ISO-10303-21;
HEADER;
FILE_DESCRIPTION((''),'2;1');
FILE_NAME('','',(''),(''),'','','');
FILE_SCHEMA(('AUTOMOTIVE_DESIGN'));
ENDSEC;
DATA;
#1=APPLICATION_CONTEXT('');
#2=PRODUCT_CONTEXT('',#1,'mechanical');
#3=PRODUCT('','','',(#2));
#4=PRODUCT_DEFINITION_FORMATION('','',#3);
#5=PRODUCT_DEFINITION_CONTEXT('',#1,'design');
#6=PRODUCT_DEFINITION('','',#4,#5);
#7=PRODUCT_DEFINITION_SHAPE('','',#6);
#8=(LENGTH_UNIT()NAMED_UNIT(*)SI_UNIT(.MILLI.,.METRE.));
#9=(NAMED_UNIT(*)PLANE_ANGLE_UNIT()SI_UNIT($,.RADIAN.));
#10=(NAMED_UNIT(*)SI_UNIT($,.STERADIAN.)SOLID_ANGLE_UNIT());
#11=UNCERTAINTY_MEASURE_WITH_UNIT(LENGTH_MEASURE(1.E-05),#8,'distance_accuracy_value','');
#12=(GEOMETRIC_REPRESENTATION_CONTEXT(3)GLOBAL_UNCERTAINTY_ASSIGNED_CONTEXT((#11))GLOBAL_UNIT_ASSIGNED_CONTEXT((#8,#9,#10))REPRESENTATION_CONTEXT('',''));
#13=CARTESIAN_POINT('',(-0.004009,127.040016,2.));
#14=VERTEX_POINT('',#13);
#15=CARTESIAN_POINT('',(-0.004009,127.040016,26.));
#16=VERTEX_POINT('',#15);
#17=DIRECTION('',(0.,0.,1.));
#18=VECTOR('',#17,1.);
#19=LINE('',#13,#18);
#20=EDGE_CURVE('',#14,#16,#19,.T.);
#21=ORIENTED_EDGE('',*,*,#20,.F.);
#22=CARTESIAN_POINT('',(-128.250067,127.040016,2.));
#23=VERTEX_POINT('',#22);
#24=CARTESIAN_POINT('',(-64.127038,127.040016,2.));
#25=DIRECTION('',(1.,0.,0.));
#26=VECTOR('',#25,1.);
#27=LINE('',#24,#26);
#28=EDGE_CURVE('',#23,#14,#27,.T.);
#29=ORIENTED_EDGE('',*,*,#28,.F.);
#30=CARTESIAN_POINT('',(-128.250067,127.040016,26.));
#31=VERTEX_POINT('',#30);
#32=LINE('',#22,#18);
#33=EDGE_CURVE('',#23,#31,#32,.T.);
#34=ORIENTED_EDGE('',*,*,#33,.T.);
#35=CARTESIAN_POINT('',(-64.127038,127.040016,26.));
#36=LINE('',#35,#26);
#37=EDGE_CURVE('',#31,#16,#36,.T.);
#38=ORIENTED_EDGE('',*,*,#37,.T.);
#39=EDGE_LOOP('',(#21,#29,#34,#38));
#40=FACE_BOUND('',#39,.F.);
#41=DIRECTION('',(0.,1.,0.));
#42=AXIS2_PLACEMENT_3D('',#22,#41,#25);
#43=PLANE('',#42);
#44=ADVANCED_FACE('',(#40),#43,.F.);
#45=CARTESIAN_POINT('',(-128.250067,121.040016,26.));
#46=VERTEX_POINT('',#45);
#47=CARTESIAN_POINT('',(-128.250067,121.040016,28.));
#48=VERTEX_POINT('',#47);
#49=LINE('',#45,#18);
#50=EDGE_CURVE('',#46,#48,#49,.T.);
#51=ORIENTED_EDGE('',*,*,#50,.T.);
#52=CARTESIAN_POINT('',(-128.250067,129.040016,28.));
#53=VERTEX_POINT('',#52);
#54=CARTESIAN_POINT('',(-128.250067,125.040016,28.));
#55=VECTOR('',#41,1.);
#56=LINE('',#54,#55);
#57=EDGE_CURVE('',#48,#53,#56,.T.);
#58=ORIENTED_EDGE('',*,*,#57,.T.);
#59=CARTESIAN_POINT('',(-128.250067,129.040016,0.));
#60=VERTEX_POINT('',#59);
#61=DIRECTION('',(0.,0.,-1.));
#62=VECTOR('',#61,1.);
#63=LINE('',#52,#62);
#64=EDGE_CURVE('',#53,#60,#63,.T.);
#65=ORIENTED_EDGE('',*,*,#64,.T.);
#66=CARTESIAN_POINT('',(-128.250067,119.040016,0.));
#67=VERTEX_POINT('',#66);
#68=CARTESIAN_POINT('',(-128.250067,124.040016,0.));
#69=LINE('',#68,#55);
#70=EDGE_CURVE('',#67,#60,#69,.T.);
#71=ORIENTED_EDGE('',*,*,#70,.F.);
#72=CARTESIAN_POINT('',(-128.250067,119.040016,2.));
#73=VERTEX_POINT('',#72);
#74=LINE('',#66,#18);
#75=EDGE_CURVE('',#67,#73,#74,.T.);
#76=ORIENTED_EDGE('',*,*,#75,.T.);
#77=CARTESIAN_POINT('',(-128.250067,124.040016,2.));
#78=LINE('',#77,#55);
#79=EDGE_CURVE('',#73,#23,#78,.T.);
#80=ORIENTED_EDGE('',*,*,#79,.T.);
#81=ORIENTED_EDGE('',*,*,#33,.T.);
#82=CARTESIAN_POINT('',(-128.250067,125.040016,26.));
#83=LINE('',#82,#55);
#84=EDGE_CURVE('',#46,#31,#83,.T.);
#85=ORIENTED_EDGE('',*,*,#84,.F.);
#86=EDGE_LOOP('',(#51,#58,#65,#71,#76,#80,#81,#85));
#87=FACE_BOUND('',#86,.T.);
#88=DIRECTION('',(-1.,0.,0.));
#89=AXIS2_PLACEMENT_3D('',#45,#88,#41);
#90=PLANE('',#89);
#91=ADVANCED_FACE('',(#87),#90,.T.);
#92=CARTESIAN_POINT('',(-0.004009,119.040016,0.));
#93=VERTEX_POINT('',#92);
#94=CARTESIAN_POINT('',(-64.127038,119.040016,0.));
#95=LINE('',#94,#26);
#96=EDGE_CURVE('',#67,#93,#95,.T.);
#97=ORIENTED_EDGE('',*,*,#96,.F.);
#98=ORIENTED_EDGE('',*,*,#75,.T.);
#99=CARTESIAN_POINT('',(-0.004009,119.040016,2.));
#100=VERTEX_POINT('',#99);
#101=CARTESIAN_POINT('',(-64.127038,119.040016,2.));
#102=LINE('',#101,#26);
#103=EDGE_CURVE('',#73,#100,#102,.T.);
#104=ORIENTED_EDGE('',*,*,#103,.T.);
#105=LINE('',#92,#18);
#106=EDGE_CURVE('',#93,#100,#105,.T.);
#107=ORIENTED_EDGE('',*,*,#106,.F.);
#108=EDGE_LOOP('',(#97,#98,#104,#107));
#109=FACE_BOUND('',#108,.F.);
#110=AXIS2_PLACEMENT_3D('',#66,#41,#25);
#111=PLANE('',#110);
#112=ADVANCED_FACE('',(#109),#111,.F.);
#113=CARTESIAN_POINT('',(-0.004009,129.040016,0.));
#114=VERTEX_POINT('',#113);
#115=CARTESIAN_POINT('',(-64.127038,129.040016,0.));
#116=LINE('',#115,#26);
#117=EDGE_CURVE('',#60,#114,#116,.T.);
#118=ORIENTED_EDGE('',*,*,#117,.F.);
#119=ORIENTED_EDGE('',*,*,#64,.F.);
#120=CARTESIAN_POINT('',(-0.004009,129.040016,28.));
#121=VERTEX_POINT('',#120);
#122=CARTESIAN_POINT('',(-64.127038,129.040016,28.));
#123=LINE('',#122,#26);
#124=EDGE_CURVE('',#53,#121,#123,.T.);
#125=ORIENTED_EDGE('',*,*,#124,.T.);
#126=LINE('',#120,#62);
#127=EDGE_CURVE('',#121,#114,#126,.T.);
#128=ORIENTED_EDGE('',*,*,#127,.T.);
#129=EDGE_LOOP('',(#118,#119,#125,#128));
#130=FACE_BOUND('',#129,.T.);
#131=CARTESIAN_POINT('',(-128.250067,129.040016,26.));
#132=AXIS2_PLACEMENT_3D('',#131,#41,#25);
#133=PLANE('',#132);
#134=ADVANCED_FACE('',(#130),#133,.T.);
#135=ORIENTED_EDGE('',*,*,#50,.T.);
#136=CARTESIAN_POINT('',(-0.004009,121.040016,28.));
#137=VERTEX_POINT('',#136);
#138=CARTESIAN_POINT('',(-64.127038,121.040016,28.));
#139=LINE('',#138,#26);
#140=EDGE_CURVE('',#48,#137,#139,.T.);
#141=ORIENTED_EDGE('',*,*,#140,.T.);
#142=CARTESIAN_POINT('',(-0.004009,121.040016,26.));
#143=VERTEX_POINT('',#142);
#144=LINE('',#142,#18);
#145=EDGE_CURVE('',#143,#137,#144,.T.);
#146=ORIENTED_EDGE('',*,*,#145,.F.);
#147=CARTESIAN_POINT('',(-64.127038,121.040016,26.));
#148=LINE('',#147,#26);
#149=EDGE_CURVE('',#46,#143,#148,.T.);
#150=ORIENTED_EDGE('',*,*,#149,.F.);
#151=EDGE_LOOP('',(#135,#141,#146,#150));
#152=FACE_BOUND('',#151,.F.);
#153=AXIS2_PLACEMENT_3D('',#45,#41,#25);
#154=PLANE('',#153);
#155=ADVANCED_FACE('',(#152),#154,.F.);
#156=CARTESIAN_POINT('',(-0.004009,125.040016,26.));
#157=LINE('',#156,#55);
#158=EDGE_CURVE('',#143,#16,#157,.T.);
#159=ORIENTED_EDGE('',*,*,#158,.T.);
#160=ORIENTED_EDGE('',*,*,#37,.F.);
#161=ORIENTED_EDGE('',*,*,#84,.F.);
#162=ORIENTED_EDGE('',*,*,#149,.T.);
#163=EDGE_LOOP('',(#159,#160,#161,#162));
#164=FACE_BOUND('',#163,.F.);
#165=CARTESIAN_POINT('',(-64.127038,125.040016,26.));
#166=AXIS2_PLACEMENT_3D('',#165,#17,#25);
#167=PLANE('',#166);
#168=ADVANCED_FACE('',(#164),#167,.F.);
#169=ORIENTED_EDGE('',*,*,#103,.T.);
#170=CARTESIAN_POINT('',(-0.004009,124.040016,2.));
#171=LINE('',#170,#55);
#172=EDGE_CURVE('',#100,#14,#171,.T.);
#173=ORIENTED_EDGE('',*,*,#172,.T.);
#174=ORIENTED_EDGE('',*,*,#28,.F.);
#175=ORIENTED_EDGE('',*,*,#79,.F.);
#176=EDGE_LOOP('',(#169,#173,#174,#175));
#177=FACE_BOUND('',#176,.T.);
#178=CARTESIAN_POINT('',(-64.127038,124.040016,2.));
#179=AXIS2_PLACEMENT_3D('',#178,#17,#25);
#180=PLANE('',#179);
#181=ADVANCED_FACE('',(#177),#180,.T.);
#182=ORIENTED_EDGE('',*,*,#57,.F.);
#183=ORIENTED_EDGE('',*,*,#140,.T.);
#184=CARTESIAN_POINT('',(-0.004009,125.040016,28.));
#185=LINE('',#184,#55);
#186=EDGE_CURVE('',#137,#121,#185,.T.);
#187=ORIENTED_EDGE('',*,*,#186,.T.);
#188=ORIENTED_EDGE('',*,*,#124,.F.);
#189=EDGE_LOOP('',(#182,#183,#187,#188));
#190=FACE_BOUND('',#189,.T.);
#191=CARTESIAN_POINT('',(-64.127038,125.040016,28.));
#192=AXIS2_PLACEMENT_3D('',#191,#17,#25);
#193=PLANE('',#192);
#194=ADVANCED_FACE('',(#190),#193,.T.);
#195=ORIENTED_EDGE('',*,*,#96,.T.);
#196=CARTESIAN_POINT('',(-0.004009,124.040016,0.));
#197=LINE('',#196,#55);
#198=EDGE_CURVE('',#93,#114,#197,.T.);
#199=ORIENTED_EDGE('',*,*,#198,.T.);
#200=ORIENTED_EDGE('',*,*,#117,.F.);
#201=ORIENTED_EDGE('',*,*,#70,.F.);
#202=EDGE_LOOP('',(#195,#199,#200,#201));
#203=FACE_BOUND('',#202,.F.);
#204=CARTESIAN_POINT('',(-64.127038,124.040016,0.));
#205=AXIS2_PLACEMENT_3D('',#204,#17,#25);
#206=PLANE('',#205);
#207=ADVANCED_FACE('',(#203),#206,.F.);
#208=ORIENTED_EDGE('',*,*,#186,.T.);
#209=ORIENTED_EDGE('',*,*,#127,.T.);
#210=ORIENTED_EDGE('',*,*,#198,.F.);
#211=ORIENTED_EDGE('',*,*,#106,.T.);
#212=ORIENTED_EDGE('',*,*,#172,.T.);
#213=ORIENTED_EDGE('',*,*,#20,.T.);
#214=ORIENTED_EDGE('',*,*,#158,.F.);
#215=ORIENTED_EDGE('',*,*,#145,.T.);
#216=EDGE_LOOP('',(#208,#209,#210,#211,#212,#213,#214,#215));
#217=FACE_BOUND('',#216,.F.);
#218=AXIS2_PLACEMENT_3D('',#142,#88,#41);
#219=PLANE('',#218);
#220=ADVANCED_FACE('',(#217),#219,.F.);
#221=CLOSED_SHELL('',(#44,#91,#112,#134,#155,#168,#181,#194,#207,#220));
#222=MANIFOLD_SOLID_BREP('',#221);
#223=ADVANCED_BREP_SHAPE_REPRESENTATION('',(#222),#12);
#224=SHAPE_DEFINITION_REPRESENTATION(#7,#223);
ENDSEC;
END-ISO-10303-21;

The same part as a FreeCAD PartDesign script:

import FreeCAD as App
import Part
import Sketcher

V = App.Vector

doc = App.newDocument("Part")
params = doc.addObject("Spreadsheet::Sheet", "Params")
for row, (alias, value) in enumerate([
    ("sketch1_height", "10 mm"),
    ("pad1_length", "2 mm"),
    ("sketch2_height", "2 mm"),
    ("pad2_length", "24 mm"),
    ("sketch3_height", "8 mm"),
    ("pad3_length", "2 mm"),
], start=1):
    params.set(f"A{row}", alias)
    params.set(f"B{row}", "=" + value)
    params.setAlias(f"B{row}", alias)

body = doc.addObject("PartDesign::Body", "Body")

sketch1 = body.newObject("Sketcher::SketchObject", "Sketch")
sketch1.AttachmentSupport = (doc.getObject("XY_Plane"), [""])
sketch1.MapMode = "FlatFace"
sketch1.addGeometry(Part.LineSegment(V(-128, 129, 0), V(-128, 119, 0)), False)
sketch1.addGeometry(Part.LineSegment(V(-128, 119, 0), V(0, 119, 0)), False)
sketch1.addGeometry(Part.LineSegment(V(0, 119, 0), V(0, 129, 0)), False)
sketch1.addGeometry(Part.LineSegment(V(0, 129, 0), V(-128, 129, 0)), False)
sketch1.addConstraint(Sketcher.Constraint("Coincident", 0, 2, 1, 1))
sketch1.addConstraint(Sketcher.Constraint("Coincident", 1, 2, 2, 1))
sketch1.addConstraint(Sketcher.Constraint("Coincident", 2, 2, 3, 1))
sketch1.addConstraint(Sketcher.Constraint("Coincident", 3, 2, 0, 1))
sketch1.addConstraint(Sketcher.Constraint("Vertical", 0))
sketch1.addConstraint(Sketcher.Constraint("Horizontal", 1))
sketch1.addConstraint(Sketcher.Constraint("Vertical", 2))
sketch1.addConstraint(Sketcher.Constraint("Horizontal", 3))
sketch1.addConstraint(Sketcher.Constraint("DistanceY", 0, 2, 0, 1, 10.0))
sketch1.addConstraint(Sketcher.Constraint("DistanceX", 1, 1, 1, 2, 128.246058))
sketch1.addConstraint(Sketcher.Constraint("DistanceX", 1, 2, -1, 1, 0.004009))
sketch1.addConstraint(Sketcher.Constraint("DistanceY", -1, 1, 0, 2, 119.040016))
sketch1.setExpression("Constraints[8]", "Params.sketch1_height")
pad1 = body.newObject("PartDesign::Pad", "Pad")
pad1.Profile = sketch1
pad1.setExpression("Length", "Params.pad1_length")

sketch2 = body.newObject("Sketcher::SketchObject", "Sketch001")
sketch2.AttachmentSupport = (doc.getObject("XY_Plane"), [""])
sketch2.MapMode = "FlatFace"
sketch2.AttachmentOffset = App.Placement(V(0, 0, 2), App.Rotation())
sketch2.addGeometry(Part.LineSegment(V(-128.3, 129, 0), V(-128.3, 127, 0)), False)
sketch2.addGeometry(Part.LineSegment(V(-128.3, 127, 0), V(0, 127, 0)), False)
sketch2.addGeometry(Part.LineSegment(V(0, 127, 0), V(0, 129, 0)), False)
sketch2.addGeometry(Part.LineSegment(V(0, 129, 0), V(-128.3, 129, 0)), False)
sketch2.addConstraint(Sketcher.Constraint("Coincident", 0, 2, 1, 1))
sketch2.addConstraint(Sketcher.Constraint("Coincident", 1, 2, 2, 1))
sketch2.addConstraint(Sketcher.Constraint("Coincident", 2, 2, 3, 1))
sketch2.addConstraint(Sketcher.Constraint("Coincident", 3, 2, 0, 1))
sketch2.addConstraint(Sketcher.Constraint("Vertical", 0))
sketch2.addConstraint(Sketcher.Constraint("Horizontal", 1))
sketch2.addConstraint(Sketcher.Constraint("Vertical", 2))
sketch2.addConstraint(Sketcher.Constraint("Horizontal", 3))
sketch2.addConstraint(Sketcher.Constraint("DistanceY", 0, 2, 0, 1, 2.0))
sketch2.addConstraint(Sketcher.Constraint("DistanceX", 1, 1, 1, 2, 128.246058))
sketch2.addConstraint(Sketcher.Constraint("DistanceX", 1, 2, -1, 1, 0.004009))
sketch2.addConstraint(Sketcher.Constraint("DistanceY", -1, 1, 0, 2, 127.040016))
sketch2.setExpression("Constraints[8]", "Params.sketch2_height")
pad2 = body.newObject("PartDesign::Pad", "Pad001")
pad2.Profile = sketch2
pad2.setExpression("Length", "Params.pad2_length")

sketch3 = body.newObject("Sketcher::SketchObject", "Sketch002")
sketch3.AttachmentSupport = (doc.getObject("XY_Plane"), [""])
sketch3.MapMode = "FlatFace"
sketch3.AttachmentOffset = App.Placement(V(0, 0, 26), App.Rotation())
sketch3.addGeometry(Part.LineSegment(V(-128, 129, 0), V(-128, 121, 0)), False)
sketch3.addGeometry(Part.LineSegment(V(-128, 121, 0), V(0, 121, 0)), False)
sketch3.addGeometry(Part.LineSegment(V(0, 121, 0), V(0, 129, 0)), False)
sketch3.addGeometry(Part.LineSegment(V(0, 129, 0), V(-128, 129, 0)), False)
sketch3.addConstraint(Sketcher.Constraint("Coincident", 0, 2, 1, 1))
sketch3.addConstraint(Sketcher.Constraint("Coincident", 1, 2, 2, 1))
sketch3.addConstraint(Sketcher.Constraint("Coincident", 2, 2, 3, 1))
sketch3.addConstraint(Sketcher.Constraint("Coincident", 3, 2, 0, 1))
sketch3.addConstraint(Sketcher.Constraint("Vertical", 0))
sketch3.addConstraint(Sketcher.Constraint("Horizontal", 1))
sketch3.addConstraint(Sketcher.Constraint("Vertical", 2))
sketch3.addConstraint(Sketcher.Constraint("Horizontal", 3))
sketch3.addConstraint(Sketcher.Constraint("DistanceY", 0, 2, 0, 1, 8.0))
sketch3.addConstraint(Sketcher.Constraint("DistanceX", 1, 1, 1, 2, 128.246058))
sketch3.addConstraint(Sketcher.Constraint("DistanceX", 1, 2, -1, 1, 0.004009))
sketch3.addConstraint(Sketcher.Constraint("DistanceY", -1, 1, 0, 2, 121.040016))
sketch3.setExpression("Constraints[8]", "Params.sketch3_height")
pad3 = body.newObject("PartDesign::Pad", "Pad002")
pad3.Profile = sketch3
pad3.setExpression("Length", "Params.pad3_length")

doc.recompute()
